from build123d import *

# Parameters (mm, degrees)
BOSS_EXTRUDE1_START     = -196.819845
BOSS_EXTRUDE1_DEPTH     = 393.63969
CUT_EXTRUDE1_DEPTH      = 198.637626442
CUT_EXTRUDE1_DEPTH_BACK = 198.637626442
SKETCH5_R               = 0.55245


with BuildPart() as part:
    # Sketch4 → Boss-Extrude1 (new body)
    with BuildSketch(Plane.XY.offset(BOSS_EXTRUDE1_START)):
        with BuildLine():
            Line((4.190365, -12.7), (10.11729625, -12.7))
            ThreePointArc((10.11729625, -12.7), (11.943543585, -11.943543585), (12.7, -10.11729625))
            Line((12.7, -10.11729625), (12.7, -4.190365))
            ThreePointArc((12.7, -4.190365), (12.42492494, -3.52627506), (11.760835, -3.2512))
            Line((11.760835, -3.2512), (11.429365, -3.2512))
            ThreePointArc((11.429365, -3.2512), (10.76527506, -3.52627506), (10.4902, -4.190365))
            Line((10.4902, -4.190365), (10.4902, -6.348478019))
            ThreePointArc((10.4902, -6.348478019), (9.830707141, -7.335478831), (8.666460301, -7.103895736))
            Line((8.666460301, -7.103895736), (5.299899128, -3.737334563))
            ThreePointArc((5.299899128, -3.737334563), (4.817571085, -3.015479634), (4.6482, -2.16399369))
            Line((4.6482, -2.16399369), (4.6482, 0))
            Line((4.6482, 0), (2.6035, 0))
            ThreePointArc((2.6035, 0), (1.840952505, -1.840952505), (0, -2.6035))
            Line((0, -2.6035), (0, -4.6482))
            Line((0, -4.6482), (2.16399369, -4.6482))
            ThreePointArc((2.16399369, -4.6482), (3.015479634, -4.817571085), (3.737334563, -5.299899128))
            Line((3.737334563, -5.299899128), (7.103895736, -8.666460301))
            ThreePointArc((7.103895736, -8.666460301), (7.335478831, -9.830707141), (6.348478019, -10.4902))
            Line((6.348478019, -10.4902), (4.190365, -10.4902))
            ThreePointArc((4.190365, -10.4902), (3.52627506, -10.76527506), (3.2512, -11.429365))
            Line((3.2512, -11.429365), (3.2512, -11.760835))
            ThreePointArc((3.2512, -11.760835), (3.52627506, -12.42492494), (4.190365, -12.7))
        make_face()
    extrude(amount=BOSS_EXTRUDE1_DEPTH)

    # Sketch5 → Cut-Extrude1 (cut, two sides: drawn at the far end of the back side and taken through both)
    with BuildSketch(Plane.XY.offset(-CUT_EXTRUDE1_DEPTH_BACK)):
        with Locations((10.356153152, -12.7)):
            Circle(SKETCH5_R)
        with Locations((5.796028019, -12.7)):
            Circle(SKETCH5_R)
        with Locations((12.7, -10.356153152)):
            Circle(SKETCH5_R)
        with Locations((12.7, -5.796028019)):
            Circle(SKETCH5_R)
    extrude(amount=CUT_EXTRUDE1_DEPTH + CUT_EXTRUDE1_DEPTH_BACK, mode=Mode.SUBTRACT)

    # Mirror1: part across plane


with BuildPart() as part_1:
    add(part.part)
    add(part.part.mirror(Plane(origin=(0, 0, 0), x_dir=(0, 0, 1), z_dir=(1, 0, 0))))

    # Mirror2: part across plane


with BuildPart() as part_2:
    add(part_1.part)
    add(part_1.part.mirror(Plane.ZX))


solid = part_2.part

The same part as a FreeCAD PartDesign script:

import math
import FreeCAD as App
import Part
import Sketcher
Q = App.Units.Quantity

doc = App.newDocument("Part")
body = doc.addObject("PartDesign::Body", "Body")

sketch1 = doc.addObject("Sketcher::SketchObject", "Sketch")
body.addObject(sketch1)
sketch1.AttachmentSupport = (doc.XY_Plane, [""])
sketch1.MapMode = "FlatFace"
sketch1.AttachmentOffset = App.Placement(App.Vector(0, 0, -196.819845), App.Rotation())
sketch1.addGeometry(Part.LineSegment(App.Vector(4.190365, -12.7, 0), App.Vector(10.117296, -12.7, 0)), False)
sketch1.addGeometry(Part.ArcOfCircle(Part.Circle(App.Vector(10.117296, -10.117296, 0), App.Vector(0, 0, 1), 2.582704), math.radians(-90), math.radians(0)), False)
sketch1.addGeometry(Part.LineSegment(App.Vector(12.7, -10.117296, 0), App.Vector(12.7, -4.190365, 0)), False)
sketch1.addGeometry(Part.ArcOfCircle(Part.Circle(App.Vector(11.760835, -4.190365, 0), App.Vector(0, 0, 1), 0.939165), math.radians(0), math.radians(90)), False)
sketch1.addGeometry(Part.LineSegment(App.Vector(11.760835, -3.2512, 0), App.Vector(11.429365, -3.2512, 0)), False)
sketch1.addGeometry(Part.ArcOfCircle(Part.Circle(App.Vector(11.429365, -4.190365, 0), App.Vector(0, 0, 1), 0.939165), math.radians(90), math.radians(180)), False)
sketch1.addGeometry(Part.LineSegment(App.Vector(10.4902, -4.190365, 0), App.Vector(10.4902, -6.348478, 0)), False)
sketch1.addGeometry(Part.ArcOfCircle(Part.Circle(App.Vector(9.421878, -6.348478, 0), App.Vector(0, 0, 1), 1.068322), math.radians(-135), math.radians(0)), False)
sketch1.addGeometry(Part.LineSegment(App.Vector(8.66646, -7.103896, 0), App.Vector(5.299899, -3.737335, 0)), False)
sketch1.addGeometry(Part.ArcOfCircle(Part.Circle(App.Vector(6.87324, -2.163994, 0), App.Vector(0, 0, 1), 2.22504), math.radians(-180), math.radians(-135)), False)
sketch1.addGeometry(Part.LineSegment(App.Vector(4.6482, -2.163994, 0), App.Vector(4.6482, 0, 0)), False)
sketch1.addGeometry(Part.LineSegment(App.Vector(4.6482, 0, 0), App.Vector(2.6035, 0, 0)), False)
sketch1.addGeometry(Part.ArcOfCircle(Part.Circle(App.Vector(0, 0, 0), App.Vector(0, 0, 1), 2.6035), math.radians(-90), math.radians(0)), False)
sketch1.addGeometry(Part.LineSegment(App.Vector(0, -2.6035, 0), App.Vector(0, -4.6482, 0)), False)
sketch1.addGeometry(Part.LineSegment(App.Vector(0, -4.6482, 0), App.Vector(2.163994, -4.6482, 0)), False)
sketch1.addGeometry(Part.ArcOfCircle(Part.Circle(App.Vector(2.163994, -6.87324, 0), App.Vector(0, 0, 1), 2.22504), math.radians(45), math.radians(90)), False)
sketch1.addGeometry(Part.LineSegment(App.Vector(3.737335, -5.299899, 0), App.Vector(7.103896, -8.66646, 0)), False)
sketch1.addGeometry(Part.ArcOfCircle(Part.Circle(App.Vector(6.348478, -9.421878, 0), App.Vector(0, 0, 1), 1.068322), math.radians(-90), math.radians(45)), False)
sketch1.addGeometry(Part.LineSegment(App.Vector(6.348478, -10.4902, 0), App.Vector(4.190365, -10.4902, 0)), False)
sketch1.addGeometry(Part.ArcOfCircle(Part.Circle(App.Vector(4.190365, -11.429365, 0), App.Vector(0, 0, 1), 0.939165), math.radians(90), math.radians(180)), False)
sketch1.addGeometry(Part.LineSegment(App.Vector(3.2512, -11.429365, 0), App.Vector(3.2512, -11.760835, 0)), False)
sketch1.addGeometry(Part.ArcOfCircle(Part.Circle(App.Vector(4.190365, -11.760835, 0), App.Vector(0, 0, 1), 0.939165), math.radians(-180), math.radians(-90)), False)
sketch1.addConstraint(Sketcher.Constraint("Tangent", 0, 2, 1, 1))
sketch1.addConstraint(Sketcher.Constraint("Tangent", 1, 2, 2, 1))
sketch1.addConstraint(Sketcher.Constraint("Tangent", 2, 2, 3, 1))
sketch1.addConstraint(Sketcher.Constraint("Tangent", 3, 2, 4, 1))
sketch1.addConstraint(Sketcher.Constraint("Tangent", 4, 2, 5, 1))
sketch1.addConstraint(Sketcher.Constraint("Tangent", 5, 2, 6, 1))
sketch1.addConstraint(Sketcher.Constraint("Tangent", 6, 2, 7, 2))
sketch1.addConstraint(Sketcher.Constraint("Tangent", 7, 1, 8, 1))
sketch1.addConstraint(Sketcher.Constraint("Tangent", 8, 2, 9, 2))
sketch1.addConstraint(Sketcher.Constraint("Tangent", 9, 1, 10, 1))
sketch1.addConstraint(Sketcher.Constraint("Coincident", 10, 2, 11, 1))
sketch1.addConstraint(Sketcher.Constraint("Coincident", 11, 2, 12, 2))
sketch1.addConstraint(Sketcher.Constraint("Coincident", 12, 1, 13, 1))
sketch1.addConstraint(Sketcher.Constraint("Coincident", 13, 2, 14, 1))
sketch1.addConstraint(Sketcher.Constraint("Tangent", 14, 2, 15, 2))
sketch1.addConstraint(Sketcher.Constraint("Tangent", 15, 1, 16, 1))
sketch1.addConstraint(Sketcher.Constraint("Tangent", 16, 2, 17, 2))
sketch1.addConstraint(Sketcher.Constraint("Tangent", 17, 1, 18, 1))
sketch1.addConstraint(Sketcher.Constraint("Tangent", 18, 2, 19, 1))
sketch1.addConstraint(Sketcher.Constraint("Tangent", 19, 2, 20, 1))
sketch1.addConstraint(Sketcher.Constraint("Tangent", 20, 2, 21, 1))
sketch1.addConstraint(Sketcher.Constraint("Tangent", 21, 2, 0, 1))
sketch1.addConstraint(Sketcher.Constraint("Horizontal", 0))
sketch1.addConstraint(Sketcher.Constraint("Vertical", 2))
sketch1.addConstraint(Sketcher.Constraint("Horizontal", 4))
sketch1.addConstraint(Sketcher.Constraint("Vertical", 6))
sketch1.addConstraint(Sketcher.Constraint("Vertical", 10))
sketch1.addConstraint(Sketcher.Constraint("Horizontal", 11))
sketch1.addConstraint(Sketcher.Constraint("Vertical", 13))
sketch1.addConstraint(Sketcher.Constraint("Horizontal", 14))
sketch1.addConstraint(Sketcher.Constraint("Horizontal", 18))
sketch1.addConstraint(Sketcher.Constraint("Vertical", 20))
sketch1.addConstraint(Sketcher.Constraint("Coincident", 12, 3, -1, 1))
sketch1.addConstraint(Sketcher.Constraint("Equal", 3, 5))
sketch1.addConstraint(Sketcher.Constraint("Equal", 9, 15))
sketch1.addConstraint(Sketcher.Constraint("Equal", 7, 17))
sketch1.addConstraint(Sketcher.Constraint("Equal", 5, 19))
sketch1.addConstraint(Sketcher.Constraint("Equal", 19, 21))
sketch1.addConstraint(Sketcher.Constraint("PointOnObject", 10, 2, -1))
sketch1.addConstraint(Sketcher.Constraint("PointOnObject", 12, 1, -2))
sketch1.addConstraint(Sketcher.Constraint("Parallel", 8, 16))
sketch1.addConstraint(Sketcher.Constraint("Equal", 0, 2))
sketch1.addConstraint(Sketcher.Constraint("Equal", 18, 6))
sketch1.addConstraint(Sketcher.Constraint("Equal", 14, 10))
sketch1.addConstraint(Sketcher.Constraint("Equal", 11, 13))
sketch1.addConstraint(Sketcher.Constraint("Equal", 4, 20))
sketch1.addConstraint(Sketcher.Constraint("Equal", 8, 16))
sketch1.addConstraint(Sketcher.Constraint("DistanceY", 0, 2, -1, 1, Q("0.5 in")))
sketch1.addConstraint(Sketcher.Constraint("Radius", 9, Q("0.0876 in")))
sketch1.addConstraint(Sketcher.Constraint("Radius", 12, Q("0.1025 in")))
sketch1.addConstraint(Sketcher.Constraint("DistanceX", 9, 1, 5, 2, Q("0.23 in")))
sketch1.addConstraint(Sketcher.Constraint("DistanceX", 11, 2, 11, 1, Q("0.0805 in")))
sketch1.addConstraint(Sketcher.Constraint("DistanceY", 3, 2, -1, 1, Q("0.128 in")))
sketch1.addConstraint(Sketcher.Constraint("Radius", 7, Q("1.068322 mm")))
sketch1.addConstraint(Sketcher.Constraint("DistanceX", 17, 3, 7, 3, Q("0.121 in")))
sketch1.addConstraint(Sketcher.Constraint("Radius", 1, Q("2.582704 mm")))
sketch1.addConstraint(Sketcher.Constraint("Radius", 3, Q("0.939165 mm")))
pad1 = doc.addObject("PartDesign::Pad", "Pad")
body.addObject(pad1)
pad1.Profile = sketch1
pad1.Length = 393.63969

sketch2 = doc.addObject("Sketcher::SketchObject", "Sketch001")
body.addObject(sketch2)
sketch2.AttachmentSupport = (doc.XY_Plane, [""])
sketch2.MapMode = "FlatFace"
sketch2.addGeometry(Part.Circle(App.Vector(10.356153, -12.7, 0), App.Vector(0, 0, 1), 0.55245), False)
sketch2.addGeometry(Part.Circle(App.Vector(5.796028, -12.7, 0), App.Vector(0, 0, 1), 0.55245), False)
sketch2.addGeometry(Part.Circle(App.Vector(12.7, -10.356153, 0), App.Vector(0, 0, 1), 0.55245), False)
sketch2.addGeometry(Part.Circle(App.Vector(12.7, -5.796028, 0), App.Vector(0, 0, 1), 0.55245), False)
sketch2.addConstraint(Sketcher.Constraint("Equal", 0, 1))
sketch2.addConstraint(Sketcher.Constraint("Equal", 1, 2))
sketch2.addConstraint(Sketcher.Constraint("Equal", 2, 3))
sketch2.addConstraint(Sketcher.Constraint("Horizontal", 0, 3, 1, 3))
sketch2.addConstraint(Sketcher.Constraint("Vertical", 2, 3, 3, 3))
sketch2.addConstraint(Sketcher.Constraint("Diameter", 0, Q("0.0435 in")))
sketch2.addConstraint(Sketcher.Constraint("DistanceY", 0, 3, -1, 1, Q("0.5 in")))
sketch2.addConstraint(Sketcher.Constraint("DistanceX", -1, 1, 2, 3, Q("0.5 in")))
sketch2.addConstraint(Sketcher.Constraint("DistanceX", -1, 1, 1, 3, Q("5.796028 mm")))
sketch2.addConstraint(Sketcher.Constraint("DistanceY", 3, 3, -1, 1, Q("5.796028 mm")))
sketch2.addConstraint(Sketcher.Constraint("DistanceX", -1, 1, 0, 3, Q("10.356153 mm")))
sketch2.addConstraint(Sketcher.Constraint("DistanceY", 2, 3, -1, 1, Q("10.356153 mm")))
pocket1 = doc.addObject("PartDesign::Pocket", "Pocket")
body.addObject(pocket1)
pocket1.Profile = sketch2
pocket1.Type = "ThroughAll"
pocket1.Midplane = True
body2 = doc.addObject("PartDesign::Body", "Body001")
doc.recompute()

body2.BaseFeature = body
doc.recompute()

mirroring = doc.addObject("Part::Mirroring", "Mirroring")
mirroring.Source = body
mirroring.Base = App.Vector(0, 0, 0)
mirroring.Normal = App.Vector(1, 0, 0)
body3 = doc.addObject("PartDesign::Body", "Body002")
body3.BaseFeature = mirroring
boolean = doc.addObject("PartDesign::Boolean", "Boolean")
body2.addObject(boolean)
boolean.Type = "Fuse"
boolean.addObjects([body3])
doc.recompute()
body4 = doc.addObject("PartDesign::Body", "Body003")
doc.recompute()

body4.BaseFeature = body2
doc.recompute()

mirroring2 = doc.addObject("Part::Mirroring", "Mirroring001")
mirroring2.Source = body2
mirroring2.Base = App.Vector(0, 0, 0)
mirroring2.Normal = App.Vector(0, 1, 0)
body5 = doc.addObject("PartDesign::Body", "Body004")
body5.BaseFeature = mirroring2
boolean2 = doc.addObject("PartDesign::Boolean", "Boolean001")
body4.addObject(boolean2)
boolean2.Type = "Fuse"
boolean2.addObjects([body5])
doc.recompute()
mirroring.Visibility = False
mirroring2.Visibility = False

doc.recompute()
